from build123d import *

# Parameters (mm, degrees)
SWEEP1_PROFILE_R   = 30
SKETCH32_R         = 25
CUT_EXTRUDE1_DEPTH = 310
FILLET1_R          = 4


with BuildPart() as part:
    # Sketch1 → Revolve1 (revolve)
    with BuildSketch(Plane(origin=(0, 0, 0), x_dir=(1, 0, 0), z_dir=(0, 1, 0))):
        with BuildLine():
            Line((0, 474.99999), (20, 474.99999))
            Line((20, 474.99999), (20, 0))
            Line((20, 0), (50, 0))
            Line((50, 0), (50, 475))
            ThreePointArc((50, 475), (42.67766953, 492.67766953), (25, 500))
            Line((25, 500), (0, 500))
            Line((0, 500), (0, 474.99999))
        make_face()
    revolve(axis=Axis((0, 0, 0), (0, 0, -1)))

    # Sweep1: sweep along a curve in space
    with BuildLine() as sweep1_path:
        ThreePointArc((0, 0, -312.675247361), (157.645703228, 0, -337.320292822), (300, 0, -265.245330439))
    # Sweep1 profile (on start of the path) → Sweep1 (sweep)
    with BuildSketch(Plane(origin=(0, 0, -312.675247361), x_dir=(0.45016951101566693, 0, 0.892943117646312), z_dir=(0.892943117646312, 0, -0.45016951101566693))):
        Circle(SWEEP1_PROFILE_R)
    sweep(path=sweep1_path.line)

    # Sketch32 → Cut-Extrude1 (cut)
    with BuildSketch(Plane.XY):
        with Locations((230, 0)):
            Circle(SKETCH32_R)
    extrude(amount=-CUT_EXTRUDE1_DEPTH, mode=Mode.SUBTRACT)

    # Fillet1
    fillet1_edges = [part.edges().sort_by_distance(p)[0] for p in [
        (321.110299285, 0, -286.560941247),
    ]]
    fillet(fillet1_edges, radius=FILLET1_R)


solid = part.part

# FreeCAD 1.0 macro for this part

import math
import FreeCAD as App
import Part
import Sketcher
from FreeCAD import Vector
Q = App.Units.Quantity


def edges_at(feature, points):
    """Names of the edges that pass closest to the given points."""
    edges = feature.Shape.Edges
    near = lambda p: min(range(len(edges)), key=lambda i: edges[i].distToShape(Part.Vertex(*p))[0])
    return sorted({f"Edge{near(p) + 1}" for p in points})

doc = App.newDocument("Part")
body = doc.addObject("PartDesign::Body", "Body")

sketch1 = doc.addObject("Sketcher::SketchObject", "Sketch")
body.addObject(sketch1)
sketch1.AttachmentSupport = (doc.XZ_Plane, [""])
sketch1.MapMode = "FlatFace"
sketch1.addGeometry([
    Part.LineSegment(Vector(0, -475, 0), Vector(20, -475, 0)),
    Part.LineSegment(Vector(20, -475, 0), Vector(20, 0, 0)),
    Part.LineSegment(Vector(20, 0, 0), Vector(50, 0, 0)),
    Part.LineSegment(Vector(50, 0, 0), Vector(50, -475, 0)),
    Part.ArcOfCircle(Part.Circle(Vector(25, -475, 0), Vector(0, 0, 1), 25), math.radians(-90), math.radians(0)),
    Part.LineSegment(Vector(25, -500, 0), Vector(0, -500, 0)),
    Part.LineSegment(Vector(0, -500, 0), Vector(0, -475, 0)),
], False)
sketch1.addConstraint([
    Sketcher.Constraint("Coincident", 0, 2, 1, 1),
    Sketcher.Constraint("Coincident", 1, 2, 2, 1),
    Sketcher.Constraint("Coincident", 2, 2, 3, 1),
    Sketcher.Constraint("Tangent", 3, 2, 4, 2),
    Sketcher.Constraint("Tangent", 4, 1, 5, 1),
    Sketcher.Constraint("Coincident", 5, 2, 6, 1),
    Sketcher.Constraint("Coincident", 6, 2, 0, 1),
    Sketcher.Constraint("Horizontal", 0),
    Sketcher.Constraint("Vertical", 1),
    Sketcher.Constraint("Horizontal", 2),
    Sketcher.Constraint("Vertical", 3),
    Sketcher.Constraint("Horizontal", 5),
    Sketcher.Constraint("Vertical", 6),
    Sketcher.Constraint("PointOnObject", 1, 2, -1),
    Sketcher.Constraint("PointOnObject", 5, 2, -2),
    Sketcher.Constraint("Radius", 4, Q("25 mm")),
    Sketcher.Constraint("DistanceX", 0, 1, 0, 2, Q("20 mm")),
    Sketcher.Constraint("DistanceX", 2, 1, 2, 2, Q("30 mm")),
    Sketcher.Constraint("DistanceY", 3, 2, 3, 1, Q("475 mm")),
    Sketcher.Constraint("DistanceY", 1, 1, 1, 2, Q("474.99999 mm")),
])
revolution = doc.addObject("PartDesign::Revolution", "Revolution")
body.addObject(revolution)
revolution.Profile = sketch1
revolution.ReferenceAxis = (sketch1, ["V_Axis"])
revolution.Angle = 360

sketch2 = doc.addObject("Sketcher::SketchObject", "Sketch001")
body.addObject(sketch2)
sketch2.Placement = App.Placement(Vector(0, 0, -312.675247), App.Rotation(Vector(0.450169511, 0, 0.892943118), Vector(0, -1.000000001, 0), Vector(0.892943118, 0, -0.450169511), "ZXY"))
sketch2.addGeometry(Part.Circle(Vector(0, 0, 0), Vector(0, 0, 1), 30), False)
sketch2.addConstraint([
    Sketcher.Constraint("Coincident", 0, 3, -1, 1),
    Sketcher.Constraint("Diameter", 0, Q("60 mm")),
])

sketch3 = doc.addObject("Sketcher::SketchObject", "Sketch002")
body.addObject(sketch3)
sketch3.AttachmentSupport = (doc.XZ_Plane, [""])
sketch3.MapMode = "FlatFace"
sketch3.addGeometry(Part.ArcOfCircle(Part.Circle(Vector(117, -81, 0), Vector(0, 0, 1), 260), math.radians(-117), math.radians(-45)), False)
sketch3.addConstraint([
    Sketcher.Constraint("PointOnObject", 0, 1, -2),
    Sketcher.Constraint("Radius", 0, Q("260 mm")),
    Sketcher.Constraint("DistanceX", -1, 1, 0, 2, Q("300 mm")),
    Sketcher.Constraint("DistanceY", 0, 2, -1, 1, Q("265.24533 mm")),
    Sketcher.Constraint("DistanceY", 0, 1, 0, 3, Q("232.165211 mm")),
])
doc.recompute()

additivepipe = doc.addObject("PartDesign::AdditivePipe", "AdditivePipe")
body.addObject(additivepipe)
additivepipe.Profile = sketch2
additivepipe.Spine = (sketch3, ["Edge1"])

sketch4 = doc.addObject("Sketcher::SketchObject", "Sketch003")
body.addObject(sketch4)
sketch4.AttachmentSupport = (doc.XY_Plane, [""])
sketch4.MapMode = "FlatFace"
sketch4.addGeometry(Part.Circle(Vector(230, 0, 0), Vector(0, 0, 1), 25), False)
sketch4.addConstraint([
    Sketcher.Constraint("PointOnObject", 0, 3, -1),
    Sketcher.Constraint("Diameter", 0, Q("50 mm")),
    Sketcher.Constraint("DistanceX", -1, 1, 0, 3, Q("230 mm")),
])
pocket1 = doc.addObject("PartDesign::Pocket", "Pocket")
body.addObject(pocket1)
pocket1.Profile = sketch4
pocket1.Length = 310
doc.recompute()

fillet = doc.addObject("PartDesign::Fillet", "Fillet")
body.addObject(fillet)
fillet.Base = (pocket1, edges_at(pocket1, [(321.11, 0, -286.561)]))
fillet.Radius = 4

doc.recompute()
